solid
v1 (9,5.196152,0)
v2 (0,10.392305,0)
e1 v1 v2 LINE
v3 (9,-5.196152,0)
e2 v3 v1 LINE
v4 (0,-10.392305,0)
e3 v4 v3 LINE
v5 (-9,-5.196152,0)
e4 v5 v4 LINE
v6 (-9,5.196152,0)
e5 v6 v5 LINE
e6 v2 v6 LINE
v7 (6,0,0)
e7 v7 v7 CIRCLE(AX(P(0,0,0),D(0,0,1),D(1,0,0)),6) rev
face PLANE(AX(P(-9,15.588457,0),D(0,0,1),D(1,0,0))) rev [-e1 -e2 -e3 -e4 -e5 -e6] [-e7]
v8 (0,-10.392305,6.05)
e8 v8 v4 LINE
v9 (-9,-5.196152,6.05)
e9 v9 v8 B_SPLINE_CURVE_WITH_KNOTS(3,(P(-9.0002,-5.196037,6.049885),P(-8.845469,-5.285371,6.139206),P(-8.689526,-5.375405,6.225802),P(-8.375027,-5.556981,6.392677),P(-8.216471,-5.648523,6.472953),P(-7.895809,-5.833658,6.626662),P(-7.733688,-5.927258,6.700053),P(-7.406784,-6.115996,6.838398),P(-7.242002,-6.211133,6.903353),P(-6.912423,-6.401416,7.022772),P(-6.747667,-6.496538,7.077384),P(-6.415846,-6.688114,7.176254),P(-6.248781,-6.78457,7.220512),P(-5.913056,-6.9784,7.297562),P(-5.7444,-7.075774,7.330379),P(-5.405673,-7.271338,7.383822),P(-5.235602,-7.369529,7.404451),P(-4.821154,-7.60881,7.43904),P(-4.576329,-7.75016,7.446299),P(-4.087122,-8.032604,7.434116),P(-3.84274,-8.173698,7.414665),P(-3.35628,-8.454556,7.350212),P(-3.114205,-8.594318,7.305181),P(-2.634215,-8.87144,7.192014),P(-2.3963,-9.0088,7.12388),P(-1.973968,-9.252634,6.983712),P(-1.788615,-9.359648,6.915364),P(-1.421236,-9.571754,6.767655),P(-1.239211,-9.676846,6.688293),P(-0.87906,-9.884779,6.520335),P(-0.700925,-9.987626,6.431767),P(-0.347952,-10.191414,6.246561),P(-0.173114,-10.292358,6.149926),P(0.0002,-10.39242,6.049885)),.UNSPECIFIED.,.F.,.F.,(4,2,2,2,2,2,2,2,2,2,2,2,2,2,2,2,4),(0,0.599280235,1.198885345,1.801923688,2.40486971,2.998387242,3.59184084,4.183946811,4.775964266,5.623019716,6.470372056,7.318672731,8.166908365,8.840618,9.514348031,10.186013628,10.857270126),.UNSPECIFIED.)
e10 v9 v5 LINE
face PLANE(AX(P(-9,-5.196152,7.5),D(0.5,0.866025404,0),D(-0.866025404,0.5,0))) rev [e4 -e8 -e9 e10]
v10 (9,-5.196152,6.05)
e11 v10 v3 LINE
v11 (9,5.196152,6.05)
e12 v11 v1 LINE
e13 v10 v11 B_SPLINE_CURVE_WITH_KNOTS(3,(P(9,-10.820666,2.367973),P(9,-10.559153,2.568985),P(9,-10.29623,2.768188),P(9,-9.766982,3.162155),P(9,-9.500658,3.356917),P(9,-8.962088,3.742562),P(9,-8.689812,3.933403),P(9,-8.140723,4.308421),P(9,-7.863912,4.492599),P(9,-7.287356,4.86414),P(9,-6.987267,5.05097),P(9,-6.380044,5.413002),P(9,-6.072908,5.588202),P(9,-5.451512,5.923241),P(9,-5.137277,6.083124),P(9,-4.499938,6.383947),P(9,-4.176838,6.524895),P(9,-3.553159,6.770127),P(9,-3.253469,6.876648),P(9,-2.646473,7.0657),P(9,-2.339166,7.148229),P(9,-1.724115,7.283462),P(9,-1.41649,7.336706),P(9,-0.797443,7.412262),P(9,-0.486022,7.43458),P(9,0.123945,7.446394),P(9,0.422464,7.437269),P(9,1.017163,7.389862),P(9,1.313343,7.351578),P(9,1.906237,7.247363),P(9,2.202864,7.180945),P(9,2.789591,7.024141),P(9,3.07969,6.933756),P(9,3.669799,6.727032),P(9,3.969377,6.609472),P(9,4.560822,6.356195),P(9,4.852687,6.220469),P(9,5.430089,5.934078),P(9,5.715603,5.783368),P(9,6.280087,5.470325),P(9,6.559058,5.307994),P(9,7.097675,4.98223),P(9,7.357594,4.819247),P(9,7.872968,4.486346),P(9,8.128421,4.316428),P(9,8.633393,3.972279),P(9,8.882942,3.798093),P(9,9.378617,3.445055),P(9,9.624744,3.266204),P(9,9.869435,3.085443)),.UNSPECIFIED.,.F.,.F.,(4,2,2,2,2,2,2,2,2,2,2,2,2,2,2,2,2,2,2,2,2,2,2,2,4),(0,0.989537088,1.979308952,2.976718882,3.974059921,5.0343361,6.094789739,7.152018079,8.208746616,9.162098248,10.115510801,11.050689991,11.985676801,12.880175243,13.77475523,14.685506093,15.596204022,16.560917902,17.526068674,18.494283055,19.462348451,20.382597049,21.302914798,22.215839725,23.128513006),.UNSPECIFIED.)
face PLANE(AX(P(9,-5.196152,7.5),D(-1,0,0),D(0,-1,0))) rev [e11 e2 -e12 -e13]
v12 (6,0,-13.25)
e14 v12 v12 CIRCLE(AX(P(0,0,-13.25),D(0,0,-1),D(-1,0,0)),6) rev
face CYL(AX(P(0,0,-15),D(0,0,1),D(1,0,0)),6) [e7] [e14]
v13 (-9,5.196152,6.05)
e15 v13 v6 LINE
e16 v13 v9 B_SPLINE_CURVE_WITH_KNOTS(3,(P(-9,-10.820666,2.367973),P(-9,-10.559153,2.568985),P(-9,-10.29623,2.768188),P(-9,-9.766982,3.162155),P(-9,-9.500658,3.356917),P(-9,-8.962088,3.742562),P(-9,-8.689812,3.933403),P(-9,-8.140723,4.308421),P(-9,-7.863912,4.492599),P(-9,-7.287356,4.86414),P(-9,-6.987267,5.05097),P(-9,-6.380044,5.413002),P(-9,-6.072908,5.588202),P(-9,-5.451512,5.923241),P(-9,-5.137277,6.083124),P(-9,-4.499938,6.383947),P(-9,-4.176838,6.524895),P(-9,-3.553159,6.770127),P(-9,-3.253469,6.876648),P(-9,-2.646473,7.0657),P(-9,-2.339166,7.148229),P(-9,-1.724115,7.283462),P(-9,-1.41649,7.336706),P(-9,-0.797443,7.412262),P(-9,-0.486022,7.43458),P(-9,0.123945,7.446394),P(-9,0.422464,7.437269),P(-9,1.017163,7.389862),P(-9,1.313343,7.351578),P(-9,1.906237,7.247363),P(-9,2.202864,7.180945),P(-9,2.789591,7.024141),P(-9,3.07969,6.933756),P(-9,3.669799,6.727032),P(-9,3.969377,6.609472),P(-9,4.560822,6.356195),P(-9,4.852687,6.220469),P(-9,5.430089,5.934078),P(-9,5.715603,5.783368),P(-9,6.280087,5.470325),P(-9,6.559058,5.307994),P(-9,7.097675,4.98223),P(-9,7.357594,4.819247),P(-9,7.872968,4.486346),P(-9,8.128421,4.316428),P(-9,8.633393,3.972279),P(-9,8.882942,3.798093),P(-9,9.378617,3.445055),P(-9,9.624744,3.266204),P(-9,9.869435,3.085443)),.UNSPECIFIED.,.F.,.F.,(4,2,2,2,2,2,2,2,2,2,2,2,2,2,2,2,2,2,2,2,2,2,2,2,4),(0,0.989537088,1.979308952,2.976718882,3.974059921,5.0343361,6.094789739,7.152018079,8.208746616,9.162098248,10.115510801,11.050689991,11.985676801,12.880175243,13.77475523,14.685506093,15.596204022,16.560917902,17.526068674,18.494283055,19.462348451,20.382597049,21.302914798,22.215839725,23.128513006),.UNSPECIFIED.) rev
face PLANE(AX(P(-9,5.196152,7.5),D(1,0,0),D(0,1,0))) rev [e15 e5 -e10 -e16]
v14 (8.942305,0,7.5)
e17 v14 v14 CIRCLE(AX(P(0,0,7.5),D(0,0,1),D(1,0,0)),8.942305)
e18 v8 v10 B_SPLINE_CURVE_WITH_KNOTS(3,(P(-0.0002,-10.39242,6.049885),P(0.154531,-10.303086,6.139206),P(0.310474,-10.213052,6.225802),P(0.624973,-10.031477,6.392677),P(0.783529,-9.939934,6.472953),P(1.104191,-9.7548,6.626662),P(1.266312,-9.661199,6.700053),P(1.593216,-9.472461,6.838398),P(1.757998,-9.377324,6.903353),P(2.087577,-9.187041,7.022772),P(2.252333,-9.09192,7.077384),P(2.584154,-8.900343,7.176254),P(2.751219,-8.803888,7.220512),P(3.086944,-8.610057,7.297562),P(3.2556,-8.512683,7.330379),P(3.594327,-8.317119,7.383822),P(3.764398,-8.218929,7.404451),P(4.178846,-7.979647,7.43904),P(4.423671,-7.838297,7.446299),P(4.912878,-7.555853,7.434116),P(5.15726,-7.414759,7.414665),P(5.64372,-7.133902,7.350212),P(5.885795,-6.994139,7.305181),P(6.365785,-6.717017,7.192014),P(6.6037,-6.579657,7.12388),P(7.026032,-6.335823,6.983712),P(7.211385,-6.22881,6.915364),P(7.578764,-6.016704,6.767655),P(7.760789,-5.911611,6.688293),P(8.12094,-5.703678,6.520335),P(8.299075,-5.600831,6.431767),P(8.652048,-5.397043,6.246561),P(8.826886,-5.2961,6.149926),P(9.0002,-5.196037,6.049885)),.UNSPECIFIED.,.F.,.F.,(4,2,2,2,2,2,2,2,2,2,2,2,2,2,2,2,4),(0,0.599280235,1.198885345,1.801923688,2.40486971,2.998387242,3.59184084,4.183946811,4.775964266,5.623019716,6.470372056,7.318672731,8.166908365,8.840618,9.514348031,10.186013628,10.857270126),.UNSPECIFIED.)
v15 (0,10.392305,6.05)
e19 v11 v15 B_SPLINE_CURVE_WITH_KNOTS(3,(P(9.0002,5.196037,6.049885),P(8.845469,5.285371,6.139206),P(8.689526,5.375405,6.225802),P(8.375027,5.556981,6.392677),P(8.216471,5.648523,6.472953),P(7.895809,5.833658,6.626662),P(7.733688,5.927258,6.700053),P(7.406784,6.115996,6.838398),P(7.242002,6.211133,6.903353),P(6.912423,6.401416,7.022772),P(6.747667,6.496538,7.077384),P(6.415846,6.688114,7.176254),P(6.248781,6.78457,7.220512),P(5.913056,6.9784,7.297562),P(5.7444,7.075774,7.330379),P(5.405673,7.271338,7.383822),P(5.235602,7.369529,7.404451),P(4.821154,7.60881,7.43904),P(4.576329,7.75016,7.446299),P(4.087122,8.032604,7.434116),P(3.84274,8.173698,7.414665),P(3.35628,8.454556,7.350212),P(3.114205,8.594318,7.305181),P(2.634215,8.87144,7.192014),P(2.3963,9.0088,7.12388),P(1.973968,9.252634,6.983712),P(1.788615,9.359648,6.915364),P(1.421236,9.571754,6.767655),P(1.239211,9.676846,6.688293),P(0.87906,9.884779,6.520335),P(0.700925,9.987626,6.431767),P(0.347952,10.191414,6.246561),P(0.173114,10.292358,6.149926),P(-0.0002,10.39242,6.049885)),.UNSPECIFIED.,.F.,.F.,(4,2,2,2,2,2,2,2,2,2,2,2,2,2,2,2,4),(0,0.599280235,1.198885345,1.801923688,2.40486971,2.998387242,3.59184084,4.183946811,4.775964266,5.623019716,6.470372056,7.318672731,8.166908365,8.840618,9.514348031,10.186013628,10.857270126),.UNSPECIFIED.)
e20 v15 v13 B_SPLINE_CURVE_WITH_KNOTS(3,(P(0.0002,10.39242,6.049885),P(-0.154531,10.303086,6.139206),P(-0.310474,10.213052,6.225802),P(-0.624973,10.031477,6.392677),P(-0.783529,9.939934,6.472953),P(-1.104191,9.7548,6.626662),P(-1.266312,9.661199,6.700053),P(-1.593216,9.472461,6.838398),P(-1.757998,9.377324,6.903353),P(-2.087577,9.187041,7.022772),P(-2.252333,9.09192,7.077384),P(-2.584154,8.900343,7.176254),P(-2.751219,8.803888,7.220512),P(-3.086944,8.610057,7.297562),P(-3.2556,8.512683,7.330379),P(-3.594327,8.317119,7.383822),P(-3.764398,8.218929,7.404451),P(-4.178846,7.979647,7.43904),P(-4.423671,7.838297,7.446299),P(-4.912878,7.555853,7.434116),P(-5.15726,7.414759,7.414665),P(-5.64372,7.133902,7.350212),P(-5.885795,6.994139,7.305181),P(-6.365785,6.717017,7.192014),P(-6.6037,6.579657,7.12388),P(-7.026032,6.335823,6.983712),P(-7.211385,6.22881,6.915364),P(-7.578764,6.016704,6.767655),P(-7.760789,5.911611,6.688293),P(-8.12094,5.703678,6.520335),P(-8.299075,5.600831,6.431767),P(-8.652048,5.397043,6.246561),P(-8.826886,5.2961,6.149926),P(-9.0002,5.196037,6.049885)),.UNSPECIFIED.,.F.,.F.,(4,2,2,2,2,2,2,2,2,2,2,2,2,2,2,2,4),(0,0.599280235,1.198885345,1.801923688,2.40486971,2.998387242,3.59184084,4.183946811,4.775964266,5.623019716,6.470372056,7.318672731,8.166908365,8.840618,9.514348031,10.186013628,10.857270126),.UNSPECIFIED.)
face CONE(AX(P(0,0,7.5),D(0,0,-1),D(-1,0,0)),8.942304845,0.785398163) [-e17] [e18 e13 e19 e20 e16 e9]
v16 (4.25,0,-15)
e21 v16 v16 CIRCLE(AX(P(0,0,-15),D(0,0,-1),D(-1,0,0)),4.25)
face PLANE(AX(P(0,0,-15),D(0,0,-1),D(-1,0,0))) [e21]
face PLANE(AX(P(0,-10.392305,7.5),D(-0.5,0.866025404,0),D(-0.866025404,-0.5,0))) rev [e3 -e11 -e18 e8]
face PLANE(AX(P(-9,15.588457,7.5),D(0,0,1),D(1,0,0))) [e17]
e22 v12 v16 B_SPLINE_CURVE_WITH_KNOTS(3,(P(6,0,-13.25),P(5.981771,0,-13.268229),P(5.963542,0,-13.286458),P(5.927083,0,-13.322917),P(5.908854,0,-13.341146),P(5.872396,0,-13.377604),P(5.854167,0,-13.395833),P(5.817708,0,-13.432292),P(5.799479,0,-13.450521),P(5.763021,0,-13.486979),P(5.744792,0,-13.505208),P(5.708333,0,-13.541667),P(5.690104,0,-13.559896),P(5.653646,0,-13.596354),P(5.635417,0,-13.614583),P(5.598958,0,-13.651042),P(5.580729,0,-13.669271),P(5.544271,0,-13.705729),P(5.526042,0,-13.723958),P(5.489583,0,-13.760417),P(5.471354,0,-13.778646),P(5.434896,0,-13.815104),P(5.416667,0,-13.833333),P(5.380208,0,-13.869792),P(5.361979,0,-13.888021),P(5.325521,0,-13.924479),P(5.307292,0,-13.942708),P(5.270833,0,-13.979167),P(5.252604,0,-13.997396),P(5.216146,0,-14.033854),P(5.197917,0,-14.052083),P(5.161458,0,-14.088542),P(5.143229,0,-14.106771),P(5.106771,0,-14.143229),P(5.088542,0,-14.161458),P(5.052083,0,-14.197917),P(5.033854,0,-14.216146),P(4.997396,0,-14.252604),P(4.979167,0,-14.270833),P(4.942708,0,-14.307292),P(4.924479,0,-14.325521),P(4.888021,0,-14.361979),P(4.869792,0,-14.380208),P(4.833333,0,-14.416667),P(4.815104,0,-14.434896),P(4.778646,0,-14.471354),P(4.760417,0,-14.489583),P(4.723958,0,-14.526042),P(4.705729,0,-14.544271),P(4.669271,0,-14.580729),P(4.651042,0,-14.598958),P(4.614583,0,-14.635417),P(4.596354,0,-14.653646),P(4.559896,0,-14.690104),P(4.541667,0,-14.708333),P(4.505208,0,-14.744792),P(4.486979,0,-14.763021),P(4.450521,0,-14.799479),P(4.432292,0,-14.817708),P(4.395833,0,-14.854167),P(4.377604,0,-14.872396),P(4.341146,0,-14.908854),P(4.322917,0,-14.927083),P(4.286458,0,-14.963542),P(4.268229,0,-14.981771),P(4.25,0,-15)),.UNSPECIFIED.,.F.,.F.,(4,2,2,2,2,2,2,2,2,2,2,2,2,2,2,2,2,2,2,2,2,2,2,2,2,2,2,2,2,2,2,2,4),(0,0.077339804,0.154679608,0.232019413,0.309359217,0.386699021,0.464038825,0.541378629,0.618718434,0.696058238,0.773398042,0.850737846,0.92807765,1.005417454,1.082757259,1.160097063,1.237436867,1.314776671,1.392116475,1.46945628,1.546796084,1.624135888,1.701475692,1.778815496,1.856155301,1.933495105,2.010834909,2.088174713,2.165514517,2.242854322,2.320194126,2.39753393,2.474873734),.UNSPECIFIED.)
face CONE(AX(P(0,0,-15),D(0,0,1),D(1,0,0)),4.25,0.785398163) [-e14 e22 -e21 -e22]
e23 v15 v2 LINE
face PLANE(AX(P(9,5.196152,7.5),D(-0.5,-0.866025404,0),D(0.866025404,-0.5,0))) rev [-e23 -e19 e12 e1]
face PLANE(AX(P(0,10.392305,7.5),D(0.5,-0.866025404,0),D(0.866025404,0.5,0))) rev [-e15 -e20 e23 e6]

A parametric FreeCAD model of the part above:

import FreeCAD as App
import Part
import Sketcher
Q = App.Units.Quantity


def edges_at(feature, points):
    """Names of the edges that pass closest to the given points."""
    edges = feature.Shape.Edges
    near = lambda p: min(range(len(edges)), key=lambda i: edges[i].distToShape(Part.Vertex(*p))[0])
    return sorted({f"Edge{near(p) + 1}" for p in points})


def add_polygon(sketch, points):
    """Adds a closed chain of lines whose ends are joined by coincident constraints."""
    first, n = sketch.GeometryCount, len(points)
    for a, b in zip(points, points[1:] + points[:1]):
        sketch.addGeometry(Part.LineSegment(App.Vector(*a, 0), App.Vector(*b, 0)), False)
    for i in range(n):
        sketch.addConstraint(Sketcher.Constraint("Coincident", first + i, 2, first + (i + 1) % n, 1))

doc = App.newDocument("Part")
body = doc.addObject("PartDesign::Body", "Body")

# Sketch on XY plane
sketch1 = body.newObject("Sketcher::SketchObject", "Sketch")
sketch1.AttachmentSupport = (doc.getObject("XY_Plane"), [""])
sketch1.MapMode = "FlatFace"
add_polygon(sketch1, [(0, 10), (-9, 5), (-9, -5), (0, -10), (9, -5), (9, 5)])  # lines 0-5
sketch1.addConstraint([
    Sketcher.Constraint("Vertical", 1),
    Sketcher.Constraint("Vertical", 4),
    Sketcher.Constraint("Symmetric", 0, 2, 3, 2, -1, 1),
    Sketcher.Constraint("Symmetric", 2, 2, 5, 2, -1, 1),
    Sketcher.Constraint("PointOnObject", 2, 2, -2),
    Sketcher.Constraint("Parallel", 2, 5),
    Sketcher.Constraint("Horizontal", 1, 2, 3, 2),
    Sketcher.Constraint("Angle", 0, Q("-150 deg")),
    Sketcher.Constraint("DistanceX", 0, 2, -1, 1, Q("9 mm")),
    Sketcher.Constraint("DistanceY", 1, 2, 1, 1, Q("10.392305 mm")),
])
pad1 = body.newObject("PartDesign::Pad", "Pad")
pad1.Profile = sketch1
pad1.Length = 7.5

# Sketch on XY plane
sketch2 = body.newObject("Sketcher::SketchObject", "Sketch001")
sketch2.AttachmentSupport = (doc.getObject("XY_Plane"), [""])
sketch2.MapMode = "FlatFace"
sketch2.addGeometry(Part.Circle(App.Vector(0, 0, 0), App.Vector(0, 0, 1), 6), False)
sketch2.addConstraint([
    Sketcher.Constraint("Coincident", 0, 3, -1, 1),
    Sketcher.Constraint("Diameter", 0, Q("12 mm")),
])
pad2 = body.newObject("PartDesign::Pad", "Pad001")
pad2.Profile = sketch2
pad2.Length = 15
pad2.Reversed = True

# Sketch on YZ plane
sketch3 = body.newObject("Sketcher::SketchObject", "Sketch002")
sketch3.AttachmentSupport = (doc.getObject("YZ_Plane"), [""])
sketch3.MapMode = "FlatFace"
add_polygon(sketch3, [(10.4, 7.5), (8.9, 7.5), (10.4, 6)])  # lines 0-2
sketch3.addConstraint([
    Sketcher.Constraint("Horizontal", 0),
    Sketcher.Constraint("Vertical", 2),
    Sketcher.Constraint("Equal", 0, 2),
    Sketcher.Constraint("DistanceX", 0, 2, 0, 1, Q("1.45 mm")),
    Sketcher.Constraint("DistanceY", -1, 1, 0, 2, Q("7.5 mm")),
    Sketcher.Constraint("DistanceX", -1, 1, 0, 2, Q("8.942305 mm")),
])
groove = body.newObject("PartDesign::Groove", "Groove")
groove.Profile = sketch3
groove.ReferenceAxis = (sketch3, ["V_Axis"])
groove.Angle = 360
doc.recompute()

chamfer = body.newObject("PartDesign::Chamfer", "Chamfer")
chamfer.Base = (groove, edges_at(groove, [(-6, 0, -15)]))
chamfer.Size = 1.75

doc.recompute()
